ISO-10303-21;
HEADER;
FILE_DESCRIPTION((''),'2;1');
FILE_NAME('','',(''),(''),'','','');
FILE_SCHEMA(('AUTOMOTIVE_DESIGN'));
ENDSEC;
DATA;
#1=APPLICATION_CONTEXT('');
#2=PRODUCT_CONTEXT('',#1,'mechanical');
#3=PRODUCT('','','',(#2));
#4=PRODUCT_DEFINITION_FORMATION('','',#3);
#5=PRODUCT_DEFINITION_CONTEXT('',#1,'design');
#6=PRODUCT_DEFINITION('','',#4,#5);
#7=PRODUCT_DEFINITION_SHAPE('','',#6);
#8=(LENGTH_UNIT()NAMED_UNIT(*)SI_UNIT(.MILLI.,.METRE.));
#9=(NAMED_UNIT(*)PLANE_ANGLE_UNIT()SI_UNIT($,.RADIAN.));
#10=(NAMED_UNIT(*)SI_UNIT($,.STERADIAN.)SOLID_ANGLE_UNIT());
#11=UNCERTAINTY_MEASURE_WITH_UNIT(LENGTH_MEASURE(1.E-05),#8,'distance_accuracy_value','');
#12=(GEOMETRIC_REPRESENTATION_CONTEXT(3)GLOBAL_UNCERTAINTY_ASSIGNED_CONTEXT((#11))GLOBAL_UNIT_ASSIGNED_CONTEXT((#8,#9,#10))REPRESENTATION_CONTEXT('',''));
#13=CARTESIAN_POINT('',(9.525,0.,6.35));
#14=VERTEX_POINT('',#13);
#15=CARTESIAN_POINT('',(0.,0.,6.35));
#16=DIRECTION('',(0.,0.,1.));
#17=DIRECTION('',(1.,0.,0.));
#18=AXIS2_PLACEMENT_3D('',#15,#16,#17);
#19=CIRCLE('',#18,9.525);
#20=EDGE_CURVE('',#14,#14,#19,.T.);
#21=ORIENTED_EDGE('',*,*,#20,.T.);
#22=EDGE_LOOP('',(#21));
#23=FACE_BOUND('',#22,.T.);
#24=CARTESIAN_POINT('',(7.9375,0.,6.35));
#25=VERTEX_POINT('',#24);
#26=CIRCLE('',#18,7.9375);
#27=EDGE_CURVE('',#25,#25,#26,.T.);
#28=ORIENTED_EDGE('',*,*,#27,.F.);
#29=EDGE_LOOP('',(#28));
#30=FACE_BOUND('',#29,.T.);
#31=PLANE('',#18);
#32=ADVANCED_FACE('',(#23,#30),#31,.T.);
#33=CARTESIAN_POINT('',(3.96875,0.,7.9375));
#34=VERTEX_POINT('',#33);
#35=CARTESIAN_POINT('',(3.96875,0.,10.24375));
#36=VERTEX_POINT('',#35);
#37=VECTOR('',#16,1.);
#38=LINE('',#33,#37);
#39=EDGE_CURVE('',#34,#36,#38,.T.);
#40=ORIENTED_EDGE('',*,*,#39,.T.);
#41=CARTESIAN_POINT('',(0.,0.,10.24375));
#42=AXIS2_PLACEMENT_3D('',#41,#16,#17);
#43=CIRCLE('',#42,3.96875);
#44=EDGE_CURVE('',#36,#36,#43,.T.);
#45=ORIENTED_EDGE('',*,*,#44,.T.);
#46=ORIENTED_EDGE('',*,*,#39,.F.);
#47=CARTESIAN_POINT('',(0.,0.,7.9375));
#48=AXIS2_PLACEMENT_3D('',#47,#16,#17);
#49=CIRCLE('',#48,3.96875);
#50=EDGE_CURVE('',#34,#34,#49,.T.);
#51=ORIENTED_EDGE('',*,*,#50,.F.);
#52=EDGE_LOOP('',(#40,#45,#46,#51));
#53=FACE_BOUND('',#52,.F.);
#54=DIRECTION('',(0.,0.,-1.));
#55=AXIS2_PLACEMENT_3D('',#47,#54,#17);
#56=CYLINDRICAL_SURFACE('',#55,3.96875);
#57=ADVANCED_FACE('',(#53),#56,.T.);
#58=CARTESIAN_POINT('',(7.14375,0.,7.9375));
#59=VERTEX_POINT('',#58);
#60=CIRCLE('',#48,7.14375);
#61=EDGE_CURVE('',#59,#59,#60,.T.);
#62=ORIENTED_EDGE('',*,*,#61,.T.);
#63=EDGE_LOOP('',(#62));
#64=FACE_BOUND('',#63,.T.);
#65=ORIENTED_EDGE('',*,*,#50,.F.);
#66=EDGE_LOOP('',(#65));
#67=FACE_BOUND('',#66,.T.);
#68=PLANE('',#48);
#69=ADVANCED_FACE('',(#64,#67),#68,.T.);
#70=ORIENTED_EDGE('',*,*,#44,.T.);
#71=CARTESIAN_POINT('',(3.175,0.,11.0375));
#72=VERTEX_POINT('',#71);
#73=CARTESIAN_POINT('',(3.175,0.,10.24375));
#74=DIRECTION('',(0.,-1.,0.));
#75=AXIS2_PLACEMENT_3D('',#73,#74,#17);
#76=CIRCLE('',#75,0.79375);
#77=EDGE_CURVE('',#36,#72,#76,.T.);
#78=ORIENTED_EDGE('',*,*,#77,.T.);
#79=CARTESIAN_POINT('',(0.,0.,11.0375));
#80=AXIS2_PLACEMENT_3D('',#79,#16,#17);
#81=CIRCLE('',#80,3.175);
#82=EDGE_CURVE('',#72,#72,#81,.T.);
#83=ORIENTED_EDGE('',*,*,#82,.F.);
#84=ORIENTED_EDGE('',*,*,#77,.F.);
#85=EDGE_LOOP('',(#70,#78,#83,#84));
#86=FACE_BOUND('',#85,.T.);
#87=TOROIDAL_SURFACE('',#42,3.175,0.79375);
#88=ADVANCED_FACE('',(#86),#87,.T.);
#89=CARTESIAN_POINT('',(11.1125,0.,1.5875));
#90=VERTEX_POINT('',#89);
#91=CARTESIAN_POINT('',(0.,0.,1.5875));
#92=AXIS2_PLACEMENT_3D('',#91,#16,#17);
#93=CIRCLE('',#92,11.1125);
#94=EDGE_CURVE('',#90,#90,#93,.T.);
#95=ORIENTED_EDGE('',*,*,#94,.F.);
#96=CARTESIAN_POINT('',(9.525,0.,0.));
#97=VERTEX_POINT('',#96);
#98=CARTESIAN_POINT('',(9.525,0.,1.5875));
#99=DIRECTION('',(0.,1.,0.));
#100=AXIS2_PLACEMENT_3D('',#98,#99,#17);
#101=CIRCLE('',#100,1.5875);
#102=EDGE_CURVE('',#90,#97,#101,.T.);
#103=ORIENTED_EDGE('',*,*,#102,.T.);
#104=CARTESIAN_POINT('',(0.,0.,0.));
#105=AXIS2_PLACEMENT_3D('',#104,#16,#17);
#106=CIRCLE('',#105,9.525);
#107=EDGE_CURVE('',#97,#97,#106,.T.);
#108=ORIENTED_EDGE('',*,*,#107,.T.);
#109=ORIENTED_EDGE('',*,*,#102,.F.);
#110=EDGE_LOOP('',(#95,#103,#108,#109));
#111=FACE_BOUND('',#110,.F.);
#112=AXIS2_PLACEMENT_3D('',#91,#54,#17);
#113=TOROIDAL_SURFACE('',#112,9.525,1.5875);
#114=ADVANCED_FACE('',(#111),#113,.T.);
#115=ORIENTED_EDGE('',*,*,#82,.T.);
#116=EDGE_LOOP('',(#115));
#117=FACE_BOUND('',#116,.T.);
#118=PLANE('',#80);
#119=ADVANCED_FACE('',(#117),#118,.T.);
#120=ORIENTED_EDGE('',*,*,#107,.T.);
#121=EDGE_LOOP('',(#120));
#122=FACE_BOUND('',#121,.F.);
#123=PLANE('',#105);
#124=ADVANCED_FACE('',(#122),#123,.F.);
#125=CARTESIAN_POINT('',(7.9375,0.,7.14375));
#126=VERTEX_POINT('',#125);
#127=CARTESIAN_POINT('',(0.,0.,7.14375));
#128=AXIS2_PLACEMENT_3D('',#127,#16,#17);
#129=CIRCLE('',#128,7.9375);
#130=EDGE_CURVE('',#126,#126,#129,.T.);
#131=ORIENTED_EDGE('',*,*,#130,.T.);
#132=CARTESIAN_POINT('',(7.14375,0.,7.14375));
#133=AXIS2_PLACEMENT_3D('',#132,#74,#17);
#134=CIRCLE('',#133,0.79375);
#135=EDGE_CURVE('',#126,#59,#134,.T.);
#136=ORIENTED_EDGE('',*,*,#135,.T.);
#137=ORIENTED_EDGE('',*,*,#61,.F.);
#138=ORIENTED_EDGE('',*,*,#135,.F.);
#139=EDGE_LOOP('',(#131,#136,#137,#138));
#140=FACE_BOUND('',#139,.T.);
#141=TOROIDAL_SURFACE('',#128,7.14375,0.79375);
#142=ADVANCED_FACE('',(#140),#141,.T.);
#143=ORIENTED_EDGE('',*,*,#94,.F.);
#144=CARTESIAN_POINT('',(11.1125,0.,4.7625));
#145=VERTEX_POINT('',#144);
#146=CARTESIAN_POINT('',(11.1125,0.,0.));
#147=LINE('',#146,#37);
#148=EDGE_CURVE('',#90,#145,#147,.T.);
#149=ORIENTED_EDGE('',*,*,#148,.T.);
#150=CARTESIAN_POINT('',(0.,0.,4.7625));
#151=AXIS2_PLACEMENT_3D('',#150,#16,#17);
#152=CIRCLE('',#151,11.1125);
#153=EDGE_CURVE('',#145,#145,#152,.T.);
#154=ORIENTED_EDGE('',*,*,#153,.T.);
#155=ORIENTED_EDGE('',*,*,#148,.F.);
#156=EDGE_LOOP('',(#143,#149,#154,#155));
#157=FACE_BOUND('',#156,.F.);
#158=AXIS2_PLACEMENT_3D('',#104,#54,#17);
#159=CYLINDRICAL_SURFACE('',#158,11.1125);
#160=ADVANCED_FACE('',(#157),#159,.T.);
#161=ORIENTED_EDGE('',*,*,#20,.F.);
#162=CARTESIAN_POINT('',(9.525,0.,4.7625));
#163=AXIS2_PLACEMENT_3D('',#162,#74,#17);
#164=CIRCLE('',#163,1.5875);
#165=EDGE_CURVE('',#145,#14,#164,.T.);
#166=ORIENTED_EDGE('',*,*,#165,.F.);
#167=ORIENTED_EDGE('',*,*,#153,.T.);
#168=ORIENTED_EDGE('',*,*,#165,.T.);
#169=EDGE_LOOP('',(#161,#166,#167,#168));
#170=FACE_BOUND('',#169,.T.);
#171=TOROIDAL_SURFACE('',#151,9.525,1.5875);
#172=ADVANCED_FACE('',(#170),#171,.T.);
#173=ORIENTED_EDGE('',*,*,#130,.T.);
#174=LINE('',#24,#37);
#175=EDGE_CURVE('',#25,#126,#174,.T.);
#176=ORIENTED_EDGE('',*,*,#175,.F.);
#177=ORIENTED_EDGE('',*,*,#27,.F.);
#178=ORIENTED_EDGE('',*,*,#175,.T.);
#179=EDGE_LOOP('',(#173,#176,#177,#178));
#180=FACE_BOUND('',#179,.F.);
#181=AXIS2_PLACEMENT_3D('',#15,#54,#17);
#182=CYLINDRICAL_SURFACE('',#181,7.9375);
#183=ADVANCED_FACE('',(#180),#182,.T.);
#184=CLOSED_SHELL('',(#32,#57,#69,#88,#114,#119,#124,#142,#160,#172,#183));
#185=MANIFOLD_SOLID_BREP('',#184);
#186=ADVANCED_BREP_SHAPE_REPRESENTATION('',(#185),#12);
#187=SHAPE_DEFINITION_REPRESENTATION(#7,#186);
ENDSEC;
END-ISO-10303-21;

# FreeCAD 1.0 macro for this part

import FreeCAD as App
import Part
import Sketcher

V = App.Vector
Q = App.Units.Quantity


def edges_at(feature, points):
    """Names of the edges that pass closest to the given points."""
    edges = feature.Shape.Edges
    near = lambda p: min(range(len(edges)), key=lambda i: edges[i].distToShape(Part.Vertex(*p))[0])
    return sorted({f"Edge{near(p) + 1}" for p in points})

doc = App.newDocument("Part")
params = doc.addObject("Spreadsheet::Sheet", "Params")
for row, (alias, value) in enumerate([
    ("sketch1_diameter", "0.875 in"),
    ("pad1_length", "0.25 in"),
    ("fillet_radius", "0.0625 in"),
    ("fillet2_radius", "0.0625 in"),
    ("sketch2_diameter", "0.625 in"),
    ("pad2_length", "0.0625 in"),
    ("fillet3_radius", "0.03125 in"),
    ("sketch3_diameter", "0.3125 in"),
    ("pad3_length", "3.1 mm"),
    ("fillet4_radius", "0.03125 in"),
], start=1):
    params.set(f"A{row}", alias)
    params.set(f"B{row}", "=" + value)
    params.setAlias(f"B{row}", alias)

body = doc.addObject("PartDesign::Body", "Body")

# Sketch on XY plane
sketch1 = body.newObject("Sketcher::SketchObject", "Sketch")
sketch1.AttachmentSupport = (doc.getObject("XY_Plane"), [""])
sketch1.MapMode = "FlatFace"
sketch1.addGeometry(Part.Circle(V(0, 0, 0), V(0, 0, 1), 11), False)
sketch1.addConstraint([
    Sketcher.Constraint("Coincident", 0, 3, -1, 1),
    Sketcher.Constraint("Diameter", 0, Q("0.875 in")),
])
sketch1.setExpression("Constraints[1]", "Params.sketch1_diameter")
pad1 = body.newObject("PartDesign::Pad", "Pad")
pad1.Profile = sketch1
pad1.setExpression("Length", "Params.pad1_length")
doc.recompute()

fillet = body.newObject("PartDesign::Fillet", "Fillet")
fillet.Base = (pad1, edges_at(pad1, [(-11.113, 0, 6.35)]))
fillet.setExpression("Radius", "Params.fillet_radius")
doc.recompute()

fillet2 = body.newObject("PartDesign::Fillet", "Fillet001")
fillet2.Base = (fillet, edges_at(fillet, [(-11.113, 0, 0)]))
fillet2.setExpression("Radius", "Params.fillet2_radius")

# Sketch on XY plane
sketch2 = body.newObject("Sketcher::SketchObject", "Sketch001")
sketch2.AttachmentSupport = (doc.getObject("XY_Plane"), [""])
sketch2.MapMode = "FlatFace"
sketch2.AttachmentOffset = App.Placement(V(0, 0, 0.25 * 25.4), App.Rotation())
sketch2.addGeometry(Part.Circle(V(0, 0, 0), V(0, 0, 1), 8), False)
sketch2.addConstraint([
    Sketcher.Constraint("Coincident", 0, 3, -1, 1),
    Sketcher.Constraint("Diameter", 0, Q("0.625 in")),
])
sketch2.setExpression("Constraints[1]", "Params.sketch2_diameter")
pad2 = body.newObject("PartDesign::Pad", "Pad001")
pad2.Profile = sketch2
pad2.setExpression("Length", "Params.pad2_length")
doc.recompute()

fillet3 = body.newObject("PartDesign::Fillet", "Fillet002")
fillet3.Base = (pad2, edges_at(pad2, [(-7.938, 0, 7.938)]))
fillet3.setExpression("Radius", "Params.fillet3_radius")

# Sketch on XY plane
sketch3 = body.newObject("Sketcher::SketchObject", "Sketch002")
sketch3.AttachmentSupport = (doc.getObject("XY_Plane"), [""])
sketch3.MapMode = "FlatFace"
sketch3.AttachmentOffset = App.Placement(V(0, 0, 0.3125 * 25.4), App.Rotation())
sketch3.addGeometry(Part.Circle(V(0, 0, 0), V(0, 0, 1), 4), False)
sketch3.addConstraint([
    Sketcher.Constraint("Coincident", 0, 3, -1, 1),
    Sketcher.Constraint("Diameter", 0, Q("0.3125 in")),
])
sketch3.setExpression("Constraints[1]", "Params.sketch3_diameter")
pad3 = body.newObject("PartDesign::Pad", "Pad002")
pad3.Profile = sketch3
pad3.setExpression("Length", "Params.pad3_length")
doc.recompute()

fillet4 = body.newObject("PartDesign::Fillet", "Fillet003")
fillet4.Base = (pad3, edges_at(pad3, [(-3.969, 0, 11.037)]))
fillet4.setExpression("Radius", "Params.fillet4_radius")

doc.recompute()
